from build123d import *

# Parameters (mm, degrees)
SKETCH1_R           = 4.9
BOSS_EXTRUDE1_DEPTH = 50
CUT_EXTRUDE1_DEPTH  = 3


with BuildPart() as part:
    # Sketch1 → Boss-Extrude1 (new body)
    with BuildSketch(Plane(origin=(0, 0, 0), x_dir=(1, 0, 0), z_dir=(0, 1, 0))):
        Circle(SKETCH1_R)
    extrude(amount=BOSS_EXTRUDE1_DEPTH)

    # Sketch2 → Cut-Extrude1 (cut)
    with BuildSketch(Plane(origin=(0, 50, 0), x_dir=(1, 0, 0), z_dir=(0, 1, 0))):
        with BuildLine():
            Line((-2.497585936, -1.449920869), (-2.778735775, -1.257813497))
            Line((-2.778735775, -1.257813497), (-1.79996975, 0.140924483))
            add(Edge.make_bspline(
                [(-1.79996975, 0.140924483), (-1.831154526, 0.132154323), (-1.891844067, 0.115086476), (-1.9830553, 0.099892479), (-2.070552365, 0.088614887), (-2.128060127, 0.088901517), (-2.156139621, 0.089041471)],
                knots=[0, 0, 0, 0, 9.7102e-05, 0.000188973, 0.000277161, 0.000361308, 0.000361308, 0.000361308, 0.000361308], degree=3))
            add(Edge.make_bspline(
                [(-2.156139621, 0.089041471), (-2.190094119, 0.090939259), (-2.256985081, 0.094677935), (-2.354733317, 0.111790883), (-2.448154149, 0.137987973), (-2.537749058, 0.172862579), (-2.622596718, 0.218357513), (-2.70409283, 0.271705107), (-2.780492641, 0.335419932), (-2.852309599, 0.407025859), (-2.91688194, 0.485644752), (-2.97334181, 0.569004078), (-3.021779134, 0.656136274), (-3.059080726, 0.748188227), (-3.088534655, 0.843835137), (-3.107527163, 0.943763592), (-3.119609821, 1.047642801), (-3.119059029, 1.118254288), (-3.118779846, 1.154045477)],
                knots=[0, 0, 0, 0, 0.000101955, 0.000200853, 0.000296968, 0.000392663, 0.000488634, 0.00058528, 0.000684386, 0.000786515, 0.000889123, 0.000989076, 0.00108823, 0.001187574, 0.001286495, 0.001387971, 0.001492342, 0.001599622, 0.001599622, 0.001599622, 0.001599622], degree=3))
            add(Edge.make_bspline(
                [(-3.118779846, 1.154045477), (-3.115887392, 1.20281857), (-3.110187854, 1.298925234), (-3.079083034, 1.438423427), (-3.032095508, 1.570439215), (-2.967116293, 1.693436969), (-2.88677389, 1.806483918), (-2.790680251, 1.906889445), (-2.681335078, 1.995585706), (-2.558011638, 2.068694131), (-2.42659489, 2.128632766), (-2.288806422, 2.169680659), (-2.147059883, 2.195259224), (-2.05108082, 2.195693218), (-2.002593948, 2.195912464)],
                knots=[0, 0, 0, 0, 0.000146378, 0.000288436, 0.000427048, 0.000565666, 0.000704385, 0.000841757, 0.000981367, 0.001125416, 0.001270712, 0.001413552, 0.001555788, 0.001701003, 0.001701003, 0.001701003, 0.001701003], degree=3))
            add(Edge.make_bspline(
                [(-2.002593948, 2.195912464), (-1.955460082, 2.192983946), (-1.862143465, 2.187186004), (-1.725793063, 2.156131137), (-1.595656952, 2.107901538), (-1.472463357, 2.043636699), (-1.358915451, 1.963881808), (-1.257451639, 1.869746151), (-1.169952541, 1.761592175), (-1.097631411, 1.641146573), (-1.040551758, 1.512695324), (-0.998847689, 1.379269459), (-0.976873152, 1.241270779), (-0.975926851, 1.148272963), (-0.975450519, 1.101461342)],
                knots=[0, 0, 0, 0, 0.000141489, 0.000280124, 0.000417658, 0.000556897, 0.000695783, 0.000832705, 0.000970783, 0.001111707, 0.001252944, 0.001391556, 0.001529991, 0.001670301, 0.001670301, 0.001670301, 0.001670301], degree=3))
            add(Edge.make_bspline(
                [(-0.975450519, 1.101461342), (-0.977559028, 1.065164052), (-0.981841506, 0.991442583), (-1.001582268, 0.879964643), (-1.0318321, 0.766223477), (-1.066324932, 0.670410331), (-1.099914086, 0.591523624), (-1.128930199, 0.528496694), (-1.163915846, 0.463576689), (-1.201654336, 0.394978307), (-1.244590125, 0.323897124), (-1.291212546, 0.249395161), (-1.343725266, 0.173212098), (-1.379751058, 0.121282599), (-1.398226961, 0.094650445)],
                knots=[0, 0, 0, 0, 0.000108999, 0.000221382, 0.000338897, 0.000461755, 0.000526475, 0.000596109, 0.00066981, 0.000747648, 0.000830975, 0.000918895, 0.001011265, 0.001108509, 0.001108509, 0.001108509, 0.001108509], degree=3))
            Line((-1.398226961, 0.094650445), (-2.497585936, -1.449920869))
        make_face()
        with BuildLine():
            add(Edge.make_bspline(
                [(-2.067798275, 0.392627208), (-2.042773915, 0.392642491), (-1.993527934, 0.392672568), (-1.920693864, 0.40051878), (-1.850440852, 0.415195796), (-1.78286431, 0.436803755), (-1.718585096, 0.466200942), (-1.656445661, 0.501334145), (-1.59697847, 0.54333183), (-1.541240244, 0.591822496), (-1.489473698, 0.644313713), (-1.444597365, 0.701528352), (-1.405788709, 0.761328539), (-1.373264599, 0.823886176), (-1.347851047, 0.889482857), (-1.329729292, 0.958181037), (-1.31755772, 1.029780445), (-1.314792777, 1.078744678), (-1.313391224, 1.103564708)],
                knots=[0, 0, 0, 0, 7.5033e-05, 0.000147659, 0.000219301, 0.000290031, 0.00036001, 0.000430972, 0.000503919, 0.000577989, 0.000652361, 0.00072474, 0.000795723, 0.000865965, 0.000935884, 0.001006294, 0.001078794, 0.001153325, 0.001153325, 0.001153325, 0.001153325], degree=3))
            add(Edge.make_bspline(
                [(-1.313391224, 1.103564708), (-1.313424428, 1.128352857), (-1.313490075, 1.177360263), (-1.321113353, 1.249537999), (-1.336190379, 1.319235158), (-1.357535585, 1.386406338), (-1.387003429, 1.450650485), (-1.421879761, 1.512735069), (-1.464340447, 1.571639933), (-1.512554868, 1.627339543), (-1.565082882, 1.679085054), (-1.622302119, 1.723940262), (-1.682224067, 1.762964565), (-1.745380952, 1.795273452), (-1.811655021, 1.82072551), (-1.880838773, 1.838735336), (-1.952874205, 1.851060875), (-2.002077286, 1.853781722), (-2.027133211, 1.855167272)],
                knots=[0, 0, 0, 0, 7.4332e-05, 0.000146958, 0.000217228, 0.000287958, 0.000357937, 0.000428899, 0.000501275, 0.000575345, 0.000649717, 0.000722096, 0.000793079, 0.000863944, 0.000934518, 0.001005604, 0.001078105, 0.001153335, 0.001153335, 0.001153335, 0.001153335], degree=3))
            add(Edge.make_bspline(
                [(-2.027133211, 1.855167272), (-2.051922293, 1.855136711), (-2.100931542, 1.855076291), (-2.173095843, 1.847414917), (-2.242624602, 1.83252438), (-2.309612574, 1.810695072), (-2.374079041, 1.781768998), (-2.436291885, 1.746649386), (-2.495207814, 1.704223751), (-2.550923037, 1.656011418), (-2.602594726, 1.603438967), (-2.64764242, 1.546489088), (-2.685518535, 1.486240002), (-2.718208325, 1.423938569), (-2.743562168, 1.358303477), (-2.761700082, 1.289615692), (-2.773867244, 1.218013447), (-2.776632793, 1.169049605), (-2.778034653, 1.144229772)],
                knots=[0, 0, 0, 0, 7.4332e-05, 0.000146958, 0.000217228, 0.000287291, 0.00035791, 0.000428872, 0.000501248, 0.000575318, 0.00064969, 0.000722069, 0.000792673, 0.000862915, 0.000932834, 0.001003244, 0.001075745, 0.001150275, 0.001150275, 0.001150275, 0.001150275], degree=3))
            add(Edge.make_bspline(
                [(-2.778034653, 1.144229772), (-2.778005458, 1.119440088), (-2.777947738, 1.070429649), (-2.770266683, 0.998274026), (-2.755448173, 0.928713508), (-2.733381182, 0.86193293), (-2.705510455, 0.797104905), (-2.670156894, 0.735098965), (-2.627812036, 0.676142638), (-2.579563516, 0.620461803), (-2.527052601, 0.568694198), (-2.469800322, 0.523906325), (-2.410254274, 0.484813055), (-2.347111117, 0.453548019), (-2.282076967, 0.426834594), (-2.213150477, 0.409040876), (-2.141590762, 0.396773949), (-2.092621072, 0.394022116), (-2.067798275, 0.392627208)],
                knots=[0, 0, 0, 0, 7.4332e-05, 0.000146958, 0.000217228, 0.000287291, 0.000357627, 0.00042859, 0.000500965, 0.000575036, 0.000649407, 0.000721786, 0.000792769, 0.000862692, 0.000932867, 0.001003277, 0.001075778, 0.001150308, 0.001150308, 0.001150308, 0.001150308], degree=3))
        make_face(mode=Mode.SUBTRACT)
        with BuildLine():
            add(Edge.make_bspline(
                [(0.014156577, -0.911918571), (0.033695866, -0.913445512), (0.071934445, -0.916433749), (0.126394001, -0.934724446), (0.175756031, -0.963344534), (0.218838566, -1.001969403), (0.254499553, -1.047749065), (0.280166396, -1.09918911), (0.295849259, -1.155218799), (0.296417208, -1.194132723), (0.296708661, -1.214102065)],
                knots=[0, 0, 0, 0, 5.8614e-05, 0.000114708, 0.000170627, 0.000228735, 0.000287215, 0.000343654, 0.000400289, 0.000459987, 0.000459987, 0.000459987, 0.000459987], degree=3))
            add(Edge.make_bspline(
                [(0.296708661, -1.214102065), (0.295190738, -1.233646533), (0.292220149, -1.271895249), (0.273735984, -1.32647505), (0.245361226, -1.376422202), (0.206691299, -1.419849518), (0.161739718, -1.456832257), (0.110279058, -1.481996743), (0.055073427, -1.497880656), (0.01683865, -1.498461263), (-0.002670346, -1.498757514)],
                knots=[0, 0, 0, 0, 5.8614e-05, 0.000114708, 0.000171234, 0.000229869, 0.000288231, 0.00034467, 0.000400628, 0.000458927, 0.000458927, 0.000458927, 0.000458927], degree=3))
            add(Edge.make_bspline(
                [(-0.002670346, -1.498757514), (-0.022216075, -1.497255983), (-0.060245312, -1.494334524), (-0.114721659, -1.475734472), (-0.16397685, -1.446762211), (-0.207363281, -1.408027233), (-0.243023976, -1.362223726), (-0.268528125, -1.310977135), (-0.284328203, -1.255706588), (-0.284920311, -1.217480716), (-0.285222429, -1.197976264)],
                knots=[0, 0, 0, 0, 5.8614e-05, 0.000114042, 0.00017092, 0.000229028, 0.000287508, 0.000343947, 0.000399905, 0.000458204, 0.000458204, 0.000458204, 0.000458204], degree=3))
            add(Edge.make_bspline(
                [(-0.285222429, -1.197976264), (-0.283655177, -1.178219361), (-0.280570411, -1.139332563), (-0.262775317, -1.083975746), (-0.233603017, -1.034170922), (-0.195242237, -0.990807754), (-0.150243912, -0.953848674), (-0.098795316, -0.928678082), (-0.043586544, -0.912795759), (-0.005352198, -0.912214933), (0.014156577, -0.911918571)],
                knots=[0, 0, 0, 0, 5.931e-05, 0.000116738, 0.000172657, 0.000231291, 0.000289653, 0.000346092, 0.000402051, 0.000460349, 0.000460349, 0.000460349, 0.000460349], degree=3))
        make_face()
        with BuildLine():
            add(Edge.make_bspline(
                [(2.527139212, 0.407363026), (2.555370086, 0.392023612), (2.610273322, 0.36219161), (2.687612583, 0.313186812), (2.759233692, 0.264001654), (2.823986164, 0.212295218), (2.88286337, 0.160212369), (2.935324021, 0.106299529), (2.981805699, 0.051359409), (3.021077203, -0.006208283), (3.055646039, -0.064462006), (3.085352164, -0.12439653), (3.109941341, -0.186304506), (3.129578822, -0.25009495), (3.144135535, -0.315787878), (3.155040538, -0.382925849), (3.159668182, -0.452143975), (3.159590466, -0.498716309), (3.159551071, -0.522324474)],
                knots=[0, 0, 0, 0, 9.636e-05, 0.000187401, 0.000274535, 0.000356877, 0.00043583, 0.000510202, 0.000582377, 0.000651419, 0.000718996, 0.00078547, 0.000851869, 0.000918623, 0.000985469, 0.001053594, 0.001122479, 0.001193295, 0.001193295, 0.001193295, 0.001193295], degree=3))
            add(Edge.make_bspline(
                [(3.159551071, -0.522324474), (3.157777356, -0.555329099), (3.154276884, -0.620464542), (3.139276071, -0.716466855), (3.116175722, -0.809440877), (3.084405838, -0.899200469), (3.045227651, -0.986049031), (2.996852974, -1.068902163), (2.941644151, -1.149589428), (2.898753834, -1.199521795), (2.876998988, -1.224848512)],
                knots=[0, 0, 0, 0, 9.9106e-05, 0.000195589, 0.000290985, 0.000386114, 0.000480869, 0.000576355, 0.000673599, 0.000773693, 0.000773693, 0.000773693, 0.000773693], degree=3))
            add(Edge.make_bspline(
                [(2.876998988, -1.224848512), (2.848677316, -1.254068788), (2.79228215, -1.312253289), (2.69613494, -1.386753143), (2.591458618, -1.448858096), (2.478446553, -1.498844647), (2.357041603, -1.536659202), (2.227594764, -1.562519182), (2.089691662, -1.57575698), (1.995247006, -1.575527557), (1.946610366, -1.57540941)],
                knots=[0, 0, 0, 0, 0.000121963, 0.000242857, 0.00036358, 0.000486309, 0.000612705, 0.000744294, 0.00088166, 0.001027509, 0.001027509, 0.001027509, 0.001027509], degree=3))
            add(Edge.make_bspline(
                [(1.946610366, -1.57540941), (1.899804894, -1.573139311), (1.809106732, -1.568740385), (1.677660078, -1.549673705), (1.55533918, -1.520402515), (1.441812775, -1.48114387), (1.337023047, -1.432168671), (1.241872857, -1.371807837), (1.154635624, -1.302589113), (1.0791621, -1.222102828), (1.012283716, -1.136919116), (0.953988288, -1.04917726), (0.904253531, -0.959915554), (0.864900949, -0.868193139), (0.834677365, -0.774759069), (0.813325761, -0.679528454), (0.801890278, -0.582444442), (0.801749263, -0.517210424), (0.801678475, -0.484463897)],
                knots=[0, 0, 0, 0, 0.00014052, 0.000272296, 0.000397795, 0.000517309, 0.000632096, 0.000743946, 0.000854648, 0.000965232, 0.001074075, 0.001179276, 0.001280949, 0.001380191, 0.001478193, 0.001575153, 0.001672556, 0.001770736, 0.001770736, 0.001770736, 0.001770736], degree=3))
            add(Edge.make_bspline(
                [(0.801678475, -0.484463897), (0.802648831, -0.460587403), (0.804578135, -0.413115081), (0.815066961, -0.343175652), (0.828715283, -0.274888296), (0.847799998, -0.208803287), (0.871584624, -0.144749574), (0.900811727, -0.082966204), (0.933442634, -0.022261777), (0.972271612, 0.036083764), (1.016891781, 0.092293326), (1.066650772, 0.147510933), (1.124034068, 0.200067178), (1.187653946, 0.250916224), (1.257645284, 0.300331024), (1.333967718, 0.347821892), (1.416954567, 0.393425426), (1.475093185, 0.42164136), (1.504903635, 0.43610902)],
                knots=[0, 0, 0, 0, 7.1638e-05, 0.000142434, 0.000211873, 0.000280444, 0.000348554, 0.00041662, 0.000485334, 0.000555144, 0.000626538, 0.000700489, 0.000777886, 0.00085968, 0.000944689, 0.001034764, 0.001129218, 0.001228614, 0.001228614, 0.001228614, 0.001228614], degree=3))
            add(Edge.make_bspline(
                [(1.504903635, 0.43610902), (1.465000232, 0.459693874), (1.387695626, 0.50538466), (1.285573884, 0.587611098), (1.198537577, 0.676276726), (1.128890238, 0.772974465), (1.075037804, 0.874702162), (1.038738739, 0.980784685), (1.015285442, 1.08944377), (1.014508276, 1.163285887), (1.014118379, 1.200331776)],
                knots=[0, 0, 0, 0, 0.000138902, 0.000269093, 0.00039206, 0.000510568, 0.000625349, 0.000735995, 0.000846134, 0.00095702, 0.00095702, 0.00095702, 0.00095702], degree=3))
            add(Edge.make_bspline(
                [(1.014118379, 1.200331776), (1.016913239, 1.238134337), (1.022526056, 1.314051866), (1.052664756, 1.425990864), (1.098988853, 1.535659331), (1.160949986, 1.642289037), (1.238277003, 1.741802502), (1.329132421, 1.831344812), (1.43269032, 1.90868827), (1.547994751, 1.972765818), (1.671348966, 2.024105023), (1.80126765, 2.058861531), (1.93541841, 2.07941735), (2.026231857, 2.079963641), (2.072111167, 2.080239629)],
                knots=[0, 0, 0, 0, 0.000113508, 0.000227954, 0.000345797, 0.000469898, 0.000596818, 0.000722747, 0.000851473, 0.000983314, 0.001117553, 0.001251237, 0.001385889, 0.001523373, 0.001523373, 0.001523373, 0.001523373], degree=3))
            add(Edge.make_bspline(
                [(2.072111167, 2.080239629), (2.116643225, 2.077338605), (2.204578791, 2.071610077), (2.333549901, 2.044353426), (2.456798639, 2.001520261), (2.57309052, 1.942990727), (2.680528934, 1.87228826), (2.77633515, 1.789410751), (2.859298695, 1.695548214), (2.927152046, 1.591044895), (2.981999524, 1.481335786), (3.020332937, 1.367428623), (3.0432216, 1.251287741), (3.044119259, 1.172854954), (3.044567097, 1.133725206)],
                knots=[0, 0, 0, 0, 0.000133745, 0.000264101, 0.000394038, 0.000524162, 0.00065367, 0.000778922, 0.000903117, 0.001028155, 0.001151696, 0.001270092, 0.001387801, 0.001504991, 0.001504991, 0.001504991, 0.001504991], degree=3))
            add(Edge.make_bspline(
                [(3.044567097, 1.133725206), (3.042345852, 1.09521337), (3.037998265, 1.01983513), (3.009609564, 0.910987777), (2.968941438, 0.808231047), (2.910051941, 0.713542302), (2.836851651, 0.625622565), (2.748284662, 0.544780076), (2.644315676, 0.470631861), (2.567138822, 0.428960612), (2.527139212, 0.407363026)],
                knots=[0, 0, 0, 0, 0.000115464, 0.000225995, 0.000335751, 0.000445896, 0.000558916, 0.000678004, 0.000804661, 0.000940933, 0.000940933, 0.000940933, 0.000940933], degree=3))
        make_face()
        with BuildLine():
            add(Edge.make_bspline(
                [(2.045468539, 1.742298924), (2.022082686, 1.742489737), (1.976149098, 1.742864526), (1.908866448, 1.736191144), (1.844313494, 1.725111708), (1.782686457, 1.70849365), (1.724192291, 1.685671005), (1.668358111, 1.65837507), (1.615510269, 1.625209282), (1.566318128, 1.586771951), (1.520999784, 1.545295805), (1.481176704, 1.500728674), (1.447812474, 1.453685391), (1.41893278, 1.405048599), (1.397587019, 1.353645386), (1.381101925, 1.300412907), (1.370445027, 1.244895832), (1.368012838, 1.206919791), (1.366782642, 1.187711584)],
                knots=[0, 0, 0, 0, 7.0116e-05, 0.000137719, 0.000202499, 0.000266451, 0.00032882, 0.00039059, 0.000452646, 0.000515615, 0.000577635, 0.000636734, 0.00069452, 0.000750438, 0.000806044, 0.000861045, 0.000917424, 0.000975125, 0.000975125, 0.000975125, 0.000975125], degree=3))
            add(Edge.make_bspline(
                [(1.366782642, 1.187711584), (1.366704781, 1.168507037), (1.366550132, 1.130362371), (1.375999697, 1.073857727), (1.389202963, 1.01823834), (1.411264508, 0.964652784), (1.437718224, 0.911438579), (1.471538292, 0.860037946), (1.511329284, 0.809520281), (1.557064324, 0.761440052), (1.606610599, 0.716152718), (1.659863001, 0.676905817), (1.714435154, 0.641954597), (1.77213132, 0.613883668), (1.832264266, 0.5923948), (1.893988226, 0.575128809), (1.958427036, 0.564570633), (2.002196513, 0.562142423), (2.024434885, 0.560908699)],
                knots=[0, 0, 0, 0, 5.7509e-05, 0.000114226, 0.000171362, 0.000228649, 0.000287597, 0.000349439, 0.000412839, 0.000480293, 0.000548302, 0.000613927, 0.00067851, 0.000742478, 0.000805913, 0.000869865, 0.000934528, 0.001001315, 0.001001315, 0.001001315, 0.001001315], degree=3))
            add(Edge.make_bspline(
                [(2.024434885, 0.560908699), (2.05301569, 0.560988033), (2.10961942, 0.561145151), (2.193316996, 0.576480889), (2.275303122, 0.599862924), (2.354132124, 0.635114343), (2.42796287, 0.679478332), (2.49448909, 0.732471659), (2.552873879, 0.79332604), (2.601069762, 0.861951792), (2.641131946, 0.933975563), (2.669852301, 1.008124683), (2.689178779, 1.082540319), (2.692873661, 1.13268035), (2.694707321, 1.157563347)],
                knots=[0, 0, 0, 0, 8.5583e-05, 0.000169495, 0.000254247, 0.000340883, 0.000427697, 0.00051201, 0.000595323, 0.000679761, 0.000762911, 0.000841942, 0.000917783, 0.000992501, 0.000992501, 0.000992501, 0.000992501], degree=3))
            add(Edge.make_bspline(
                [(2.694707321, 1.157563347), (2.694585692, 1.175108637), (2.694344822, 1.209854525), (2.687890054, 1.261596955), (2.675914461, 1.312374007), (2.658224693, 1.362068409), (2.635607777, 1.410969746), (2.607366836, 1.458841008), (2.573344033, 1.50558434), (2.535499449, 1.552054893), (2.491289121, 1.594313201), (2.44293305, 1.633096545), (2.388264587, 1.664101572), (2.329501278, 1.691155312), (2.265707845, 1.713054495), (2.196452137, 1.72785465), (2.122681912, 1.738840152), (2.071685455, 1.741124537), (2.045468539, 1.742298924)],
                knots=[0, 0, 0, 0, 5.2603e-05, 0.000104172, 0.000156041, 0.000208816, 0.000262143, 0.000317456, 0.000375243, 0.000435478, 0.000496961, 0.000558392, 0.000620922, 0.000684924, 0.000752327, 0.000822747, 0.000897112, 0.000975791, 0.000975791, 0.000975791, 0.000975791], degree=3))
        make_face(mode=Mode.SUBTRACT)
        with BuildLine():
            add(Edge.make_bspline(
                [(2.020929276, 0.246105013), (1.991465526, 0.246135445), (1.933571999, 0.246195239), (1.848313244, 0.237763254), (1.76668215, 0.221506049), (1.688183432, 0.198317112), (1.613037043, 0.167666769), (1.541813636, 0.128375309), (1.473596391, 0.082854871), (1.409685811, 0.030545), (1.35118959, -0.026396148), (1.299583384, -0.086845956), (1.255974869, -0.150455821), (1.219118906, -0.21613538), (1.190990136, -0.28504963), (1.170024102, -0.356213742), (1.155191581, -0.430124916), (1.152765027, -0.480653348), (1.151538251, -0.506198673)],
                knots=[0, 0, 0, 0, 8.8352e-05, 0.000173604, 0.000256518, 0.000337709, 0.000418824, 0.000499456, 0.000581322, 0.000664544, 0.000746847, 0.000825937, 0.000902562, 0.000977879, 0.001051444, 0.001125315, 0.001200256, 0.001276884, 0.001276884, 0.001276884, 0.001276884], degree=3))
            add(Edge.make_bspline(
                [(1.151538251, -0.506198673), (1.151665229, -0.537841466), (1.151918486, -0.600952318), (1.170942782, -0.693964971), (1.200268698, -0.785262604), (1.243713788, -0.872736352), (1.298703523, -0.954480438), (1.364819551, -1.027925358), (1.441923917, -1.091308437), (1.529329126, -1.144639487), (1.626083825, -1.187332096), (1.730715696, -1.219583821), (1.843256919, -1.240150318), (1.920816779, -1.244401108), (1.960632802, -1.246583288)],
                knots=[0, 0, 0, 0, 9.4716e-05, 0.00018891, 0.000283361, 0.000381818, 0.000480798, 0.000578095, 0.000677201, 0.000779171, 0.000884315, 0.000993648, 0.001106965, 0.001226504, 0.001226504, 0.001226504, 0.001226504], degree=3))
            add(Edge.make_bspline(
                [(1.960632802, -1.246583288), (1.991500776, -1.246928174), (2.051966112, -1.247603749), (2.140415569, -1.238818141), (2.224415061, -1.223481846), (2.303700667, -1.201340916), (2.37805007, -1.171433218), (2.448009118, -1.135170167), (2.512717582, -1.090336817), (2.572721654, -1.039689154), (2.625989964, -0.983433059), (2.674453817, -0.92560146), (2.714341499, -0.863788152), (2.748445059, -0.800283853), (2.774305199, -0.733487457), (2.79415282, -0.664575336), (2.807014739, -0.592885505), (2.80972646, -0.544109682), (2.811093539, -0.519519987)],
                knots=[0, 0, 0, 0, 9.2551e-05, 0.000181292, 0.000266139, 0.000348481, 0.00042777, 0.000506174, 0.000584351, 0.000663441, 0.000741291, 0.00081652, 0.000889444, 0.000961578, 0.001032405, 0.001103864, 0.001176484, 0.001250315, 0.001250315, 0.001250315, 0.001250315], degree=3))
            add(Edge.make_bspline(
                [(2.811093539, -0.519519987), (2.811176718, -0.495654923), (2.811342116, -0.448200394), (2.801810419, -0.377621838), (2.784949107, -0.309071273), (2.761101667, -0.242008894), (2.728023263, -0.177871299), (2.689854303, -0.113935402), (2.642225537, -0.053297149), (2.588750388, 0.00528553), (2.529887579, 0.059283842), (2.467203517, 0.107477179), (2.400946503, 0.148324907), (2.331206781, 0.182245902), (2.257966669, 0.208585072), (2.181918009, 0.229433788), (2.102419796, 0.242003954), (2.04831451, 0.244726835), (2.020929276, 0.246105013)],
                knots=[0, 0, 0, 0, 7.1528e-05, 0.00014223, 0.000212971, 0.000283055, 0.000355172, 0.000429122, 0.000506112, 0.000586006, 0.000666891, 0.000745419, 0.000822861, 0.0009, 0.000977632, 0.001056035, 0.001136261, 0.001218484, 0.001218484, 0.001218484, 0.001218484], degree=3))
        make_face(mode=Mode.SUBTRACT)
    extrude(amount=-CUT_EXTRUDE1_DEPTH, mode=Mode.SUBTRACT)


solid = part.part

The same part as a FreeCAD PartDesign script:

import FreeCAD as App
import Part
import Sketcher
from FreeCAD import Vector

doc = App.newDocument("Part")
body = doc.addObject("PartDesign::Body", "Body")

# Sketch on XZ plane
sketch1 = body.newObject("Sketcher::SketchObject", "Sketch")
sketch1.AttachmentSupport = (doc.getObject("XZ_Plane"), [""])
sketch1.MapMode = "FlatFace"
sketch1.addGeometry(Part.Circle(Vector(0, 0, 0), Vector(0, 0, 1), 4.9), False)
sketch1.addConstraint(Sketcher.Constraint("Coincident", 0, 3, -1, 1))
sketch1.addConstraint(Sketcher.Constraint("Diameter", 0, 9.8))
pad1 = body.newObject("PartDesign::Pad", "Pad")
pad1.Profile = sketch1
pad1.Length = 50
pad1.Reversed = True

# Sketch on XZ plane
sketch2 = body.newObject("Sketcher::SketchObject", "Sketch001")
sketch2.AttachmentSupport = (doc.getObject("XZ_Plane"), [""])
sketch2.MapMode = "FlatFace"
sketch2.AttachmentOffset = App.Placement(Vector(0, 0, -50), App.Rotation())
sketch2.addGeometry(Part.LineSegment(Vector(-2.778736, 1.257813, 0), Vector(-2.497586, 1.449921, 0)), False)
sketch2.addGeometry(Part.LineSegment(Vector(-2.497586, 1.449921, 0), Vector(-1.398227, -0.09465, 0)), False)
sketch2.addGeometry(Part.BSplineCurve([Vector(-0.975451, -1.101461, 0), Vector(-0.977559, -1.065164, 0), Vector(-0.981842, -0.991443, 0), Vector(-1.001582, -0.879965, 0), Vector(-1.031832, -0.766223, 0), Vector(-1.066325, -0.67041, 0), Vector(-1.099914, -0.591524, 0), Vector(-1.12893, -0.528497, 0), Vector(-1.163916, -0.463577, 0), Vector(-1.201654, -0.394978, 0), Vector(-1.24459, -0.323897, 0), Vector(-1.291213, -0.249395, 0), Vector(-1.343725, -0.173212, 0), Vector(-1.379751, -0.121283, 0), Vector(-1.398227, -0.09465, 0)], [4, 1, 1, 1, 1, 1, 1, 1, 1, 1, 1, 1, 4], [0, 0.000108999, 0.000221382, 0.000338897, 0.000461755, 0.000526475, 0.000596109, 0.00066981, 0.000747648, 0.000830975, 0.000918895, 0.001011265, 0.001108509], False, 3, [1, 1, 1, 1, 1, 1, 1, 1, 1, 1, 1, 1, 1, 1, 1], False), False)
sketch2.addGeometry(Part.BSplineCurve([Vector(-2.002594, -2.195912, 0), Vector(-1.95546, -2.192984, 0), Vector(-1.862143, -2.187186, 0), Vector(-1.725793, -2.156131, 0), Vector(-1.595657, -2.107902, 0), Vector(-1.472463, -2.043637, 0), Vector(-1.358915, -1.963882, 0), Vector(-1.257452, -1.869746, 0), Vector(-1.169953, -1.761592, 0), Vector(-1.097631, -1.641147, 0), Vector(-1.040552, -1.512695, 0), Vector(-0.998848, -1.379269, 0), Vector(-0.976873, -1.241271, 0), Vector(-0.975927, -1.148273, 0), Vector(-0.975451, -1.101461, 0)], [4, 1, 1, 1, 1, 1, 1, 1, 1, 1, 1, 1, 4], [0, 0.000141489, 0.000280124, 0.000417658, 0.000556897, 0.000695783, 0.000832705, 0.000970783, 0.001111707, 0.001252944, 0.001391556, 0.001529991, 0.001670301], False, 3, [1, 1, 1, 1, 1, 1, 1, 1, 1, 1, 1, 1, 1, 1, 1], False), False)
sketch2.addGeometry(Part.BSplineCurve([Vector(-3.11878, -1.154045, 0), Vector(-3.115887, -1.202819, 0), Vector(-3.110188, -1.298925, 0), Vector(-3.079083, -1.438423, 0), Vector(-3.032096, -1.570439, 0), Vector(-2.967116, -1.693437, 0), Vector(-2.886774, -1.806484, 0), Vector(-2.79068, -1.906889, 0), Vector(-2.681335, -1.995586, 0), Vector(-2.558012, -2.068694, 0), Vector(-2.426595, -2.128633, 0), Vector(-2.288806, -2.169681, 0), Vector(-2.14706, -2.195259, 0), Vector(-2.051081, -2.195693, 0), Vector(-2.002594, -2.195912, 0)], [4, 1, 1, 1, 1, 1, 1, 1, 1, 1, 1, 1, 4], [0, 0.000146378, 0.000288436, 0.000427048, 0.000565666, 0.000704385, 0.000841757, 0.000981367, 0.001125416, 0.001270712, 0.001413552, 0.001555788, 0.001701003], False, 3, [1, 1, 1, 1, 1, 1, 1, 1, 1, 1, 1, 1, 1, 1, 1], False), False)
sketch2.addGeometry(Part.BSplineCurve([Vector(-2.15614, -0.089041, 0), Vector(-2.190094, -0.090939, 0), Vector(-2.256985, -0.094678, 0), Vector(-2.354733, -0.111791, 0), Vector(-2.448154, -0.137988, 0), Vector(-2.537749, -0.172863, 0), Vector(-2.622597, -0.218358, 0), Vector(-2.704093, -0.271705, 0), Vector(-2.780493, -0.33542, 0), Vector(-2.85231, -0.407026, 0), Vector(-2.916882, -0.485645, 0), Vector(-2.973342, -0.569004, 0), Vector(-3.021779, -0.656136, 0), Vector(-3.059081, -0.748188, 0), Vector(-3.088535, -0.843835, 0), Vector(-3.107527, -0.943764, 0), Vector(-3.11961, -1.047643, 0), Vector(-3.119059, -1.118254, 0), Vector(-3.11878, -1.154045, 0)], [4, 1, 1, 1, 1, 1, 1, 1, 1, 1, 1, 1, 1, 1, 1, 1, 4], [0, 0.000101955, 0.000200853, 0.000296968, 0.000392663, 0.000488634, 0.00058528, 0.000684386, 0.000786515, 0.000889123, 0.000989076, 0.00108823, 0.001187574, 0.001286495, 0.001387971, 0.001492342, 0.001599622], False, 3, [1, 1, 1, 1, 1, 1, 1, 1, 1, 1, 1, 1, 1, 1, 1, 1, 1, 1, 1], False), False)
sketch2.addGeometry(Part.BSplineCurve([Vector(-1.79997, -0.140924, 0), Vector(-1.831155, -0.132154, 0), Vector(-1.891844, -0.115086, 0), Vector(-1.983055, -0.099892, 0), Vector(-2.070552, -0.088615, 0), Vector(-2.12806, -0.088902, 0), Vector(-2.15614, -0.089041, 0)], [4, 1, 1, 1, 4], [0, 0.000097102, 0.000188973, 0.000277161, 0.000361308], False, 3, [1, 1, 1, 1, 1, 1, 1], False), False)
sketch2.addGeometry(Part.LineSegment(Vector(-1.79997, -0.140924, 0), Vector(-2.778736, 1.257813, 0)), False)
sketch2.addGeometry(Part.BSplineCurve([Vector(-2.778035, -1.14423, 0), Vector(-2.778005, -1.11944, 0), Vector(-2.777948, -1.07043, 0), Vector(-2.770267, -0.998274, 0), Vector(-2.755448, -0.928714, 0), Vector(-2.733381, -0.861933, 0), Vector(-2.70551, -0.797105, 0), Vector(-2.670157, -0.735099, 0), Vector(-2.627812, -0.676143, 0), Vector(-2.579564, -0.620462, 0), Vector(-2.527053, -0.568694, 0), Vector(-2.4698, -0.523906, 0), Vector(-2.410254, -0.484813, 0), Vector(-2.347111, -0.453548, 0), Vector(-2.282077, -0.426835, 0), Vector(-2.21315, -0.409041, 0), Vector(-2.141591, -0.396774, 0), Vector(-2.092621, -0.394022, 0), Vector(-2.067798, -0.392627, 0)], [4, 1, 1, 1, 1, 1, 1, 1, 1, 1, 1, 1, 1, 1, 1, 1, 4], [0, 0.000074332, 0.000146958, 0.000217228, 0.000287291, 0.000357627, 0.00042859, 0.000500965, 0.000575036, 0.000649407, 0.000721786, 0.000792769, 0.000862692, 0.000932867, 0.001003277, 0.001075778, 0.001150308], False, 3, [1, 1, 1, 1, 1, 1, 1, 1, 1, 1, 1, 1, 1, 1, 1, 1, 1, 1, 1], False), False)
sketch2.addGeometry(Part.BSplineCurve([Vector(-2.027133, -1.855167, 0), Vector(-2.051922, -1.855137, 0), Vector(-2.100932, -1.855076, 0), Vector(-2.173096, -1.847415, 0), Vector(-2.242625, -1.832524, 0), Vector(-2.309613, -1.810695, 0), Vector(-2.374079, -1.781769, 0), Vector(-2.436292, -1.746649, 0), Vector(-2.495208, -1.704224, 0), Vector(-2.550923, -1.656011, 0), Vector(-2.602595, -1.603439, 0), Vector(-2.647642, -1.546489, 0), Vector(-2.685519, -1.48624, 0), Vector(-2.718208, -1.423939, 0), Vector(-2.743562, -1.358303, 0), Vector(-2.7617, -1.289616, 0), Vector(-2.773867, -1.218013, 0), Vector(-2.776633, -1.16905, 0), Vector(-2.778035, -1.14423, 0)], [4, 1, 1, 1, 1, 1, 1, 1, 1, 1, 1, 1, 1, 1, 1, 1, 4], [0, 0.000074332, 0.000146958, 0.000217228, 0.000287291, 0.00035791, 0.000428872, 0.000501248, 0.000575318, 0.00064969, 0.000722069, 0.000792673, 0.000862915, 0.000932834, 0.001003244, 0.001075745, 0.001150275], False, 3, [1, 1, 1, 1, 1, 1, 1, 1, 1, 1, 1, 1, 1, 1, 1, 1, 1, 1, 1], False), False)
sketch2.addGeometry(Part.BSplineCurve([Vector(-1.313391, -1.103565, 0), Vector(-1.313424, -1.128353, 0), Vector(-1.31349, -1.17736, 0), Vector(-1.321113, -1.249538, 0), Vector(-1.33619, -1.319235, 0), Vector(-1.357536, -1.386406, 0), Vector(-1.387003, -1.45065, 0), Vector(-1.42188, -1.512735, 0), Vector(-1.46434, -1.57164, 0), Vector(-1.512555, -1.62734, 0), Vector(-1.565083, -1.679085, 0), Vector(-1.622302, -1.72394, 0), Vector(-1.682224, -1.762965, 0), Vector(-1.745381, -1.795273, 0), Vector(-1.811655, -1.820726, 0), Vector(-1.880839, -1.838735, 0), Vector(-1.952874, -1.851061, 0), Vector(-2.002077, -1.853782, 0), Vector(-2.027133, -1.855167, 0)], [4, 1, 1, 1, 1, 1, 1, 1, 1, 1, 1, 1, 1, 1, 1, 1, 4], [0, 0.000074332, 0.000146958, 0.000217228, 0.000287958, 0.000357937, 0.000428899, 0.000501275, 0.000575345, 0.000649717, 0.000722096, 0.000793079, 0.000863944, 0.000934518, 0.001005604, 0.001078105, 0.001153335], False, 3, [1, 1, 1, 1, 1, 1, 1, 1, 1, 1, 1, 1, 1, 1, 1, 1, 1, 1, 1], False), False)
sketch2.addGeometry(Part.BSplineCurve([Vector(-2.067798, -0.392627, 0), Vector(-2.042774, -0.392642, 0), Vector(-1.993528, -0.392673, 0), Vector(-1.920694, -0.400519, 0), Vector(-1.850441, -0.415196, 0), Vector(-1.782864, -0.436804, 0), Vector(-1.718585, -0.466201, 0), Vector(-1.656446, -0.501334, 0), Vector(-1.596978, -0.543332, 0), Vector(-1.54124, -0.591822, 0), Vector(-1.489474, -0.644314, 0), Vector(-1.444597, -0.701528, 0), Vector(-1.405789, -0.761329, 0), Vector(-1.373265, -0.823886, 0), Vector(-1.347851, -0.889483, 0), Vector(-1.329729, -0.958181, 0), Vector(-1.317558, -1.02978, 0), Vector(-1.314793, -1.078745, 0), Vector(-1.313391, -1.103565, 0)], [4, 1, 1, 1, 1, 1, 1, 1, 1, 1, 1, 1, 1, 1, 1, 1, 4], [0, 0.000075033, 0.000147659, 0.000219301, 0.000290031, 0.00036001, 0.000430972, 0.000503919, 0.000577989, 0.000652361, 0.00072474, 0.000795723, 0.000865965, 0.000935884, 0.001006294, 0.001078794, 0.001153325], False, 3, [1, 1, 1, 1, 1, 1, 1, 1, 1, 1, 1, 1, 1, 1, 1, 1, 1, 1, 1], False), False)
sketch2.addGeometry(Part.BSplineCurve([Vector(0.014157, 0.911919, 0), Vector(0.033696, 0.913446, 0), Vector(0.071934, 0.916434, 0), Vector(0.126394, 0.934724, 0), Vector(0.175756, 0.963345, 0), Vector(0.218839, 1.001969, 0), Vector(0.2545, 1.047749, 0), Vector(0.280166, 1.099189, 0), Vector(0.295849, 1.155219, 0), Vector(0.296417, 1.194133, 0), Vector(0.296709, 1.214102, 0)], [4, 1, 1, 1, 1, 1, 1, 1, 4], [0, 0.000058614, 0.000114708, 0.000170627, 0.000228735, 0.000287215, 0.000343654, 0.000400289, 0.000459987], False, 3, [1, 1, 1, 1, 1, 1, 1, 1, 1, 1, 1], False), False)
sketch2.addGeometry(Part.BSplineCurve([Vector(-0.285222, 1.197976, 0), Vector(-0.283655, 1.178219, 0), Vector(-0.28057, 1.139333, 0), Vector(-0.262775, 1.083976, 0), Vector(-0.233603, 1.034171, 0), Vector(-0.195242, 0.990808, 0), Vector(-0.150244, 0.953849, 0), Vector(-0.098795, 0.928678, 0), Vector(-0.043587, 0.912796, 0), Vector(-0.005352, 0.912215, 0), Vector(0.014157, 0.911919, 0)], [4, 1, 1, 1, 1, 1, 1, 1, 4], [0, 0.00005931, 0.000116738, 0.000172657, 0.000231291, 0.000289653, 0.000346092, 0.000402051, 0.000460349], False, 3, [1, 1, 1, 1, 1, 1, 1, 1, 1, 1, 1], False), False)
sketch2.addGeometry(Part.BSplineCurve([Vector(-0.00267, 1.498758, 0), Vector(-0.022216, 1.497256, 0), Vector(-0.060245, 1.494335, 0), Vector(-0.114722, 1.475734, 0), Vector(-0.163977, 1.446762, 0), Vector(-0.207363, 1.408027, 0), Vector(-0.243024, 1.362224, 0), Vector(-0.268528, 1.310977, 0), Vector(-0.284328, 1.255707, 0), Vector(-0.28492, 1.217481, 0), Vector(-0.285222, 1.197976, 0)], [4, 1, 1, 1, 1, 1, 1, 1, 4], [0, 0.000058614, 0.000114042, 0.00017092, 0.000229028, 0.000287508, 0.000343947, 0.000399905, 0.000458204], False, 3, [1, 1, 1, 1, 1, 1, 1, 1, 1, 1, 1], False), False)
sketch2.addGeometry(Part.BSplineCurve([Vector(0.296709, 1.214102, 0), Vector(0.295191, 1.233647, 0), Vector(0.29222, 1.271895, 0), Vector(0.273736, 1.326475, 0), Vector(0.245361, 1.376422, 0), Vector(0.206691, 1.41985, 0), Vector(0.16174, 1.456832, 0), Vector(0.110279, 1.481997, 0), Vector(0.055073, 1.497881, 0), Vector(0.016839, 1.498461, 0), Vector(-0.00267, 1.498758, 0)], [4, 1, 1, 1, 1, 1, 1, 1, 4], [0, 0.000058614, 0.000114708, 0.000171234, 0.000229869, 0.000288231, 0.00034467, 0.000400628, 0.000458927], False, 3, [1, 1, 1, 1, 1, 1, 1, 1, 1, 1, 1], False), False)
sketch2.addGeometry(Part.BSplineCurve([Vector(2.527139, -0.407363, 0), Vector(2.55537, -0.392024, 0), Vector(2.610273, -0.362192, 0), Vector(2.687613, -0.313187, 0), Vector(2.759234, -0.264002, 0), Vector(2.823986, -0.212295, 0), Vector(2.882863, -0.160212, 0), Vector(2.935324, -0.1063, 0), Vector(2.981806, -0.051359, 0), Vector(3.021077, 0.006208, 0), Vector(3.055646, 0.064462, 0), Vector(3.085352, 0.124397, 0), Vector(3.109941, 0.186305, 0), Vector(3.129579, 0.250095, 0), Vector(3.144136, 0.315788, 0), Vector(3.155041, 0.382926, 0), Vector(3.159668, 0.452144, 0), Vector(3.15959, 0.498716, 0), Vector(3.159551, 0.522324, 0)], [4, 1, 1, 1, 1, 1, 1, 1, 1, 1, 1, 1, 1, 1, 1, 1, 4], [0, 0.00009636, 0.000187401, 0.000274535, 0.000356877, 0.00043583, 0.000510202, 0.000582377, 0.000651419, 0.000718996, 0.00078547, 0.000851869, 0.000918623, 0.000985469, 0.001053594, 0.001122479, 0.001193295], False, 3, [1, 1, 1, 1, 1, 1, 1, 1, 1, 1, 1, 1, 1, 1, 1, 1, 1, 1, 1], False), False)
sketch2.addGeometry(Part.BSplineCurve([Vector(3.044567, -1.133725, 0), Vector(3.042346, -1.095213, 0), Vector(3.037998, -1.019835, 0), Vector(3.00961, -0.910988, 0), Vector(2.968941, -0.808231, 0), Vector(2.910052, -0.713542, 0), Vector(2.836852, -0.625623, 0), Vector(2.748285, -0.54478, 0), Vector(2.644316, -0.470632, 0), Vector(2.567139, -0.428961, 0), Vector(2.527139, -0.407363, 0)], [4, 1, 1, 1, 1, 1, 1, 1, 4], [0, 0.000115464, 0.000225995, 0.000335751, 0.000445896, 0.000558916, 0.000678004, 0.000804661, 0.000940933], False, 3, [1, 1, 1, 1, 1, 1, 1, 1, 1, 1, 1], False), False)
sketch2.addGeometry(Part.BSplineCurve([Vector(2.072111, -2.08024, 0), Vector(2.116643, -2.077339, 0), Vector(2.204579, -2.07161, 0), Vector(2.33355, -2.044353, 0), Vector(2.456799, -2.00152, 0), Vector(2.573091, -1.942991, 0), Vector(2.680529, -1.872288, 0), Vector(2.776335, -1.789411, 0), Vector(2.859299, -1.695548, 0), Vector(2.927152, -1.591045, 0), Vector(2.982, -1.481336, 0), Vector(3.020333, -1.367429, 0), Vector(3.043222, -1.251288, 0), Vector(3.044119, -1.172855, 0), Vector(3.044567, -1.133725, 0)], [4, 1, 1, 1, 1, 1, 1, 1, 1, 1, 1, 1, 4], [0, 0.000133745, 0.000264101, 0.000394038, 0.000524162, 0.00065367, 0.000778922, 0.000903117, 0.001028155, 0.001151696, 0.001270092, 0.001387801, 0.001504991], False, 3, [1, 1, 1, 1, 1, 1, 1, 1, 1, 1, 1, 1, 1, 1, 1], False), False)
sketch2.addGeometry(Part.BSplineCurve([Vector(1.014118, -1.200332, 0), Vector(1.016913, -1.238134, 0), Vector(1.022526, -1.314052, 0), Vector(1.052665, -1.425991, 0), Vector(1.098989, -1.535659, 0), Vector(1.16095, -1.642289, 0), Vector(1.238277, -1.741803, 0), Vector(1.329132, -1.831345, 0), Vector(1.43269, -1.908688, 0), Vector(1.547995, -1.972766, 0), Vector(1.671349, -2.024105, 0), Vector(1.801268, -2.058862, 0), Vector(1.935418, -2.079417, 0), Vector(2.026232, -2.079964, 0), Vector(2.072111, -2.08024, 0)], [4, 1, 1, 1, 1, 1, 1, 1, 1, 1, 1, 1, 4], [0, 0.000113508, 0.000227954, 0.000345797, 0.000469898, 0.000596818, 0.000722747, 0.000851473, 0.000983314, 0.001117553, 0.001251237, 0.001385889, 0.001523373], False, 3, [1, 1, 1, 1, 1, 1, 1, 1, 1, 1, 1, 1, 1, 1, 1], False), False)
sketch2.addGeometry(Part.BSplineCurve([Vector(1.504904, -0.436109, 0), Vector(1.465, -0.459694, 0), Vector(1.387696, -0.505385, 0), Vector(1.285574, -0.587611, 0), Vector(1.198538, -0.676277, 0), Vector(1.12889, -0.772974, 0), Vector(1.075038, -0.874702, 0), Vector(1.038739, -0.980785, 0), Vector(1.015285, -1.089444, 0), Vector(1.014508, -1.163286, 0), Vector(1.014118, -1.200332, 0)], [4, 1, 1, 1, 1, 1, 1, 1, 4], [0, 0.000138902, 0.000269093, 0.00039206, 0.000510568, 0.000625349, 0.000735995, 0.000846134, 0.00095702], False, 3, [1, 1, 1, 1, 1, 1, 1, 1, 1, 1, 1], False), False)
sketch2.addGeometry(Part.BSplineCurve([Vector(0.801678, 0.484464, 0), Vector(0.802649, 0.460587, 0), Vector(0.804578, 0.413115, 0), Vector(0.815067, 0.343176, 0), Vector(0.828715, 0.274888, 0), Vector(0.8478, 0.208803, 0), Vector(0.871585, 0.14475, 0), Vector(0.900812, 0.082966, 0), Vector(0.933443, 0.022262, 0), Vector(0.972272, -0.036084, 0), Vector(1.016892, -0.092293, 0), Vector(1.066651, -0.147511, 0), Vector(1.124034, -0.200067, 0), Vector(1.187654, -0.250916, 0), Vector(1.257645, -0.300331, 0), Vector(1.333968, -0.347822, 0), Vector(1.416955, -0.393425, 0), Vector(1.475093, -0.421641, 0), Vector(1.504904, -0.436109, 0)], [4, 1, 1, 1, 1, 1, 1, 1, 1, 1, 1, 1, 1, 1, 1, 1, 4], [0, 0.000071638, 0.000142434, 0.000211873, 0.000280444, 0.000348554, 0.00041662, 0.000485334, 0.000555144, 0.000626538, 0.000700489, 0.000777886, 0.00085968, 0.000944689, 0.001034764, 0.001129218, 0.001228614], False, 3, [1, 1, 1, 1, 1, 1, 1, 1, 1, 1, 1, 1, 1, 1, 1, 1, 1, 1, 1], False), False)
sketch2.addGeometry(Part.BSplineCurve([Vector(1.94661, 1.575409, 0), Vector(1.899805, 1.573139, 0), Vector(1.809107, 1.56874, 0), Vector(1.67766, 1.549674, 0), Vector(1.555339, 1.520403, 0), Vector(1.441813, 1.481144, 0), Vector(1.337023, 1.432169, 0), Vector(1.241873, 1.371808, 0), Vector(1.154636, 1.302589, 0), Vector(1.079162, 1.222103, 0), Vector(1.012284, 1.136919, 0), Vector(0.953988, 1.049177, 0), Vector(0.904254, 0.959916, 0), Vector(0.864901, 0.868193, 0), Vector(0.834677, 0.774759, 0), Vector(0.813326, 0.679528, 0), Vector(0.80189, 0.582444, 0), Vector(0.801749, 0.51721, 0), Vector(0.801678, 0.484464, 0)], [4, 1, 1, 1, 1, 1, 1, 1, 1, 1, 1, 1, 1, 1, 1, 1, 4], [0, 0.00014052, 0.000272296, 0.000397795, 0.000517309, 0.000632096, 0.000743946, 0.000854648, 0.000965232, 0.001074075, 0.001179276, 0.001280949, 0.001380191, 0.001478193, 0.001575153, 0.001672556, 0.001770736], False, 3, [1, 1, 1, 1, 1, 1, 1, 1, 1, 1, 1, 1, 1, 1, 1, 1, 1, 1, 1], False), False)
sketch2.addGeometry(Part.BSplineCurve([Vector(2.876999, 1.224849, 0), Vector(2.848677, 1.254069, 0), Vector(2.792282, 1.312253, 0), Vector(2.696135, 1.386753, 0), Vector(2.591459, 1.448858, 0), Vector(2.478447, 1.498845, 0), Vector(2.357042, 1.536659, 0), Vector(2.227595, 1.562519, 0), Vector(2.089692, 1.575757, 0), Vector(1.995247, 1.575528, 0), Vector(1.94661, 1.575409, 0)], [4, 1, 1, 1, 1, 1, 1, 1, 4], [0, 0.000121963, 0.000242857, 0.00036358, 0.000486309, 0.000612705, 0.000744294, 0.00088166, 0.001027509], False, 3, [1, 1, 1, 1, 1, 1, 1, 1, 1, 1, 1], False), False)
sketch2.addGeometry(Part.BSplineCurve([Vector(3.159551, 0.522324, 0), Vector(3.157777, 0.555329, 0), Vector(3.154277, 0.620465, 0), Vector(3.139276, 0.716467, 0), Vector(3.116176, 0.809441, 0), Vector(3.084406, 0.8992, 0), Vector(3.045228, 0.986049, 0), Vector(2.996853, 1.068902, 0), Vector(2.941644, 1.149589, 0), Vector(2.898754, 1.199522, 0), Vector(2.876999, 1.224849, 0)], [4, 1, 1, 1, 1, 1, 1, 1, 4], [0, 0.000099106, 0.000195589, 0.000290985, 0.000386114, 0.000480869, 0.000576355, 0.000673599, 0.000773693], False, 3, [1, 1, 1, 1, 1, 1, 1, 1, 1, 1, 1], False), False)
sketch2.addGeometry(Part.BSplineCurve([Vector(2.811094, 0.51952, 0), Vector(2.811177, 0.495655, 0), Vector(2.811342, 0.4482, 0), Vector(2.80181, 0.377622, 0), Vector(2.784949, 0.309071, 0), Vector(2.761102, 0.242009, 0), Vector(2.728023, 0.177871, 0), Vector(2.689854, 0.113935, 0), Vector(2.642226, 0.053297, 0), Vector(2.58875, -0.005286, 0), Vector(2.529888, -0.059284, 0), Vector(2.467204, -0.107477, 0), Vector(2.400947, -0.148325, 0), Vector(2.331207, -0.182246, 0), Vector(2.257967, -0.208585, 0), Vector(2.181918, -0.229434, 0), Vector(2.10242, -0.242004, 0), Vector(2.048315, -0.244727, 0), Vector(2.020929, -0.246105, 0)], [4, 1, 1, 1, 1, 1, 1, 1, 1, 1, 1, 1, 1, 1, 1, 1, 4], [0, 0.000071528, 0.00014223, 0.000212971, 0.000283055, 0.000355172, 0.000429122, 0.000506112, 0.000586006, 0.000666891, 0.000745419, 0.000822861, 0.0009, 0.000977632, 0.001056035, 0.001136261, 0.001218484], False, 3, [1, 1, 1, 1, 1, 1, 1, 1, 1, 1, 1, 1, 1, 1, 1, 1, 1, 1, 1], False), False)
sketch2.addGeometry(Part.BSplineCurve([Vector(1.960633, 1.246583, 0), Vector(1.991501, 1.246928, 0), Vector(2.051966, 1.247604, 0), Vector(2.140416, 1.238818, 0), Vector(2.224415, 1.223482, 0), Vector(2.303701, 1.201341, 0), Vector(2.37805, 1.171433, 0), Vector(2.448009, 1.13517, 0), Vector(2.512718, 1.090337, 0), Vector(2.572722, 1.039689, 0), Vector(2.62599, 0.983433, 0), Vector(2.674454, 0.925601, 0), Vector(2.714341, 0.863788, 0), Vector(2.748445, 0.800284, 0), Vector(2.774305, 0.733487, 0), Vector(2.794153, 0.664575, 0), Vector(2.807015, 0.592886, 0), Vector(2.809726, 0.54411, 0), Vector(2.811094, 0.51952, 0)], [4, 1, 1, 1, 1, 1, 1, 1, 1, 1, 1, 1, 1, 1, 1, 1, 4], [0, 0.000092551, 0.000181292, 0.000266139, 0.000348481, 0.00042777, 0.000506174, 0.000584351, 0.000663441, 0.000741291, 0.00081652, 0.000889444, 0.000961578, 0.001032405, 0.001103864, 0.001176484, 0.001250315], False, 3, [1, 1, 1, 1, 1, 1, 1, 1, 1, 1, 1, 1, 1, 1, 1, 1, 1, 1, 1], False), False)
sketch2.addGeometry(Part.BSplineCurve([Vector(1.151538, 0.506199, 0), Vector(1.151665, 0.537841, 0), Vector(1.151918, 0.600952, 0), Vector(1.170943, 0.693965, 0), Vector(1.200269, 0.785263, 0), Vector(1.243714, 0.872736, 0), Vector(1.298704, 0.95448, 0), Vector(1.36482, 1.027925, 0), Vector(1.441924, 1.091308, 0), Vector(1.529329, 1.144639, 0), Vector(1.626084, 1.187332, 0), Vector(1.730716, 1.219584, 0), Vector(1.843257, 1.24015, 0), Vector(1.920817, 1.244401, 0), Vector(1.960633, 1.246583, 0)], [4, 1, 1, 1, 1, 1, 1, 1, 1, 1, 1, 1, 4], [0, 0.000094716, 0.00018891, 0.000283361, 0.000381818, 0.000480798, 0.000578095, 0.000677201, 0.000779171, 0.000884315, 0.000993648, 0.001106965, 0.001226504], False, 3, [1, 1, 1, 1, 1, 1, 1, 1, 1, 1, 1, 1, 1, 1, 1], False), False)
sketch2.addGeometry(Part.BSplineCurve([Vector(2.020929, -0.246105, 0), Vector(1.991466, -0.246135, 0), Vector(1.933572, -0.246195, 0), Vector(1.848313, -0.237763, 0), Vector(1.766682, -0.221506, 0), Vector(1.688183, -0.198317, 0), Vector(1.613037, -0.167667, 0), Vector(1.541814, -0.128375, 0), Vector(1.473596, -0.082855, 0), Vector(1.409686, -0.030545, 0), Vector(1.35119, 0.026396, 0), Vector(1.299583, 0.086846, 0), Vector(1.255975, 0.150456, 0), Vector(1.219119, 0.216135, 0), Vector(1.19099, 0.28505, 0), Vector(1.170024, 0.356214, 0), Vector(1.155192, 0.430125, 0), Vector(1.152765, 0.480653, 0), Vector(1.151538, 0.506199, 0)], [4, 1, 1, 1, 1, 1, 1, 1, 1, 1, 1, 1, 1, 1, 1, 1, 4], [0, 0.000088352, 0.000173604, 0.000256518, 0.000337709, 0.000418824, 0.000499456, 0.000581322, 0.000664544, 0.000746847, 0.000825937, 0.000902562, 0.000977879, 0.001051444, 0.001125315, 0.001200256, 0.001276884], False, 3, [1, 1, 1, 1, 1, 1, 1, 1, 1, 1, 1, 1, 1, 1, 1, 1, 1, 1, 1], False), False)
sketch2.addGeometry(Part.BSplineCurve([Vector(2.694707, -1.157563, 0), Vector(2.694586, -1.175109, 0), Vector(2.694345, -1.209855, 0), Vector(2.68789, -1.261597, 0), Vector(2.675914, -1.312374, 0), Vector(2.658225, -1.362068, 0), Vector(2.635608, -1.41097, 0), Vector(2.607367, -1.458841, 0), Vector(2.573344, -1.505584, 0), Vector(2.535499, -1.552055, 0), Vector(2.491289, -1.594313, 0), Vector(2.442933, -1.633097, 0), Vector(2.388265, -1.664102, 0), Vector(2.329501, -1.691155, 0), Vector(2.265708, -1.713054, 0), Vector(2.196452, -1.727855, 0), Vector(2.122682, -1.73884, 0), Vector(2.071685, -1.741125, 0), Vector(2.045469, -1.742299, 0)], [4, 1, 1, 1, 1, 1, 1, 1, 1, 1, 1, 1, 1, 1, 1, 1, 4], [0, 0.000052603, 0.000104172, 0.000156041, 0.000208816, 0.000262143, 0.000317456, 0.000375243, 0.000435478, 0.000496961, 0.000558392, 0.000620922, 0.000684924, 0.000752327, 0.000822747, 0.000897112, 0.000975791], False, 3, [1, 1, 1, 1, 1, 1, 1, 1, 1, 1, 1, 1, 1, 1, 1, 1, 1, 1, 1], False), False)
sketch2.addGeometry(Part.BSplineCurve([Vector(2.024435, -0.560909, 0), Vector(2.053016, -0.560988, 0), Vector(2.109619, -0.561145, 0), Vector(2.193317, -0.576481, 0), Vector(2.275303, -0.599863, 0), Vector(2.354132, -0.635114, 0), Vector(2.427963, -0.679478, 0), Vector(2.494489, -0.732472, 0), Vector(2.552874, -0.793326, 0), Vector(2.60107, -0.861952, 0), Vector(2.641132, -0.933976, 0), Vector(2.669852, -1.008125, 0), Vector(2.689179, -1.08254, 0), Vector(2.692874, -1.13268, 0), Vector(2.694707, -1.157563, 0)], [4, 1, 1, 1, 1, 1, 1, 1, 1, 1, 1, 1, 4], [0, 0.000085583, 0.000169495, 0.000254247, 0.000340883, 0.000427697, 0.00051201, 0.000595323, 0.000679761, 0.000762911, 0.000841942, 0.000917783, 0.000992501], False, 3, [1, 1, 1, 1, 1, 1, 1, 1, 1, 1, 1, 1, 1, 1, 1], False), False)
sketch2.addGeometry(Part.BSplineCurve([Vector(1.366783, -1.187712, 0), Vector(1.366705, -1.168507, 0), Vector(1.36655, -1.130362, 0), Vector(1.376, -1.073858, 0), Vector(1.389203, -1.018238, 0), Vector(1.411265, -0.964653, 0), Vector(1.437718, -0.911439, 0), Vector(1.471538, -0.860038, 0), Vector(1.511329, -0.80952, 0), Vector(1.557064, -0.76144, 0), Vector(1.606611, -0.716153, 0), Vector(1.659863, -0.676906, 0), Vector(1.714435, -0.641955, 0), Vector(1.772131, -0.613884, 0), Vector(1.832264, -0.592395, 0), Vector(1.893988, -0.575129, 0), Vector(1.958427, -0.564571, 0), Vector(2.002197, -0.562142, 0), Vector(2.024435, -0.560909, 0)], [4, 1, 1, 1, 1, 1, 1, 1, 1, 1, 1, 1, 1, 1, 1, 1, 4], [0, 0.000057509, 0.000114226, 0.000171362, 0.000228649, 0.000287597, 0.000349439, 0.000412839, 0.000480293, 0.000548302, 0.000613927, 0.00067851, 0.000742478, 0.000805913, 0.000869865, 0.000934528, 0.001001315], False, 3, [1, 1, 1, 1, 1, 1, 1, 1, 1, 1, 1, 1, 1, 1, 1, 1, 1, 1, 1], False), False)
sketch2.addGeometry(Part.BSplineCurve([Vector(2.045469, -1.742299, 0), Vector(2.022083, -1.74249, 0), Vector(1.976149, -1.742865, 0), Vector(1.908866, -1.736191, 0), Vector(1.844313, -1.725112, 0), Vector(1.782686, -1.708494, 0), Vector(1.724192, -1.685671, 0), Vector(1.668358, -1.658375, 0), Vector(1.61551, -1.625209, 0), Vector(1.566318, -1.586772, 0), Vector(1.521, -1.545296, 0), Vector(1.481177, -1.500729, 0), Vector(1.447812, -1.453685, 0), Vector(1.418933, -1.405049, 0), Vector(1.397587, -1.353645, 0), Vector(1.381102, -1.300413, 0), Vector(1.370445, -1.244896, 0), Vector(1.368013, -1.20692, 0), Vector(1.366783, -1.187712, 0)], [4, 1, 1, 1, 1, 1, 1, 1, 1, 1, 1, 1, 1, 1, 1, 1, 4], [0, 0.000070116, 0.000137719, 0.000202499, 0.000266451, 0.00032882, 0.00039059, 0.000452646, 0.000515615, 0.000577635, 0.000636734, 0.00069452, 0.000750438, 0.000806044, 0.000861045, 0.000917424, 0.000975125], False, 3, [1, 1, 1, 1, 1, 1, 1, 1, 1, 1, 1, 1, 1, 1, 1, 1, 1, 1, 1], False), False)
sketch2.addConstraint(Sketcher.Constraint("Block", 2))
sketch2.addConstraint(Sketcher.Constraint("Block", 3))
sketch2.addConstraint(Sketcher.Constraint("Block", 4))
sketch2.addConstraint(Sketcher.Constraint("Block", 5))
sketch2.addConstraint(Sketcher.Constraint("Block", 6))
sketch2.addConstraint(Sketcher.Constraint("Block", 8))
sketch2.addConstraint(Sketcher.Constraint("Block", 9))
sketch2.addConstraint(Sketcher.Constraint("Block", 10))
sketch2.addConstraint(Sketcher.Constraint("Block", 11))
sketch2.addConstraint(Sketcher.Constraint("Block", 12))
sketch2.addConstraint(Sketcher.Constraint("Block", 13))
sketch2.addConstraint(Sketcher.Constraint("Block", 14))
sketch2.addConstraint(Sketcher.Constraint("Block", 15))
sketch2.addConstraint(Sketcher.Constraint("Block", 16))
sketch2.addConstraint(Sketcher.Constraint("Block", 17))
sketch2.addConstraint(Sketcher.Constraint("Block", 18))
sketch2.addConstraint(Sketcher.Constraint("Block", 19))
sketch2.addConstraint(Sketcher.Constraint("Block", 20))
sketch2.addConstraint(Sketcher.Constraint("Block", 21))
sketch2.addConstraint(Sketcher.Constraint("Block", 22))
sketch2.addConstraint(Sketcher.Constraint("Block", 23))
sketch2.addConstraint(Sketcher.Constraint("Block", 24))
sketch2.addConstraint(Sketcher.Constraint("Block", 25))
sketch2.addConstraint(Sketcher.Constraint("Block", 26))
sketch2.addConstraint(Sketcher.Constraint("Block", 27))
sketch2.addConstraint(Sketcher.Constraint("Block", 28))
sketch2.addConstraint(Sketcher.Constraint("Block", 29))
sketch2.addConstraint(Sketcher.Constraint("Block", 30))
sketch2.addConstraint(Sketcher.Constraint("Block", 31))
sketch2.addConstraint(Sketcher.Constraint("Block", 32))
sketch2.addConstraint(Sketcher.Constraint("Coincident", 0, 2, 1, 1))
sketch2.addConstraint(Sketcher.Constraint("Coincident", 1, 2, 2, 2))
sketch2.addConstraint(Sketcher.Constraint("Coincident", 6, 1, 7, 1))
sketch2.addConstraint(Sketcher.Constraint("Coincident", 7, 2, 0, 1))
sketch2.addConstraint(Sketcher.Constraint("Distance", 1, 1.895861))
sketch2.addConstraint(Sketcher.Constraint("DistanceY", -1, 1, 0, 2, 1.449921))
sketch2.addConstraint(Sketcher.Constraint("DistanceX", 7, 2, 0, 2, 0.28115))
sketch2.addConstraint(Sketcher.Constraint("Distance", 0, 0.340515))
pocket1 = body.newObject("PartDesign::Pocket", "Pocket")
pocket1.Profile = sketch2
pocket1.Length = 3
pocket1.Reversed = True

doc.recompute()
